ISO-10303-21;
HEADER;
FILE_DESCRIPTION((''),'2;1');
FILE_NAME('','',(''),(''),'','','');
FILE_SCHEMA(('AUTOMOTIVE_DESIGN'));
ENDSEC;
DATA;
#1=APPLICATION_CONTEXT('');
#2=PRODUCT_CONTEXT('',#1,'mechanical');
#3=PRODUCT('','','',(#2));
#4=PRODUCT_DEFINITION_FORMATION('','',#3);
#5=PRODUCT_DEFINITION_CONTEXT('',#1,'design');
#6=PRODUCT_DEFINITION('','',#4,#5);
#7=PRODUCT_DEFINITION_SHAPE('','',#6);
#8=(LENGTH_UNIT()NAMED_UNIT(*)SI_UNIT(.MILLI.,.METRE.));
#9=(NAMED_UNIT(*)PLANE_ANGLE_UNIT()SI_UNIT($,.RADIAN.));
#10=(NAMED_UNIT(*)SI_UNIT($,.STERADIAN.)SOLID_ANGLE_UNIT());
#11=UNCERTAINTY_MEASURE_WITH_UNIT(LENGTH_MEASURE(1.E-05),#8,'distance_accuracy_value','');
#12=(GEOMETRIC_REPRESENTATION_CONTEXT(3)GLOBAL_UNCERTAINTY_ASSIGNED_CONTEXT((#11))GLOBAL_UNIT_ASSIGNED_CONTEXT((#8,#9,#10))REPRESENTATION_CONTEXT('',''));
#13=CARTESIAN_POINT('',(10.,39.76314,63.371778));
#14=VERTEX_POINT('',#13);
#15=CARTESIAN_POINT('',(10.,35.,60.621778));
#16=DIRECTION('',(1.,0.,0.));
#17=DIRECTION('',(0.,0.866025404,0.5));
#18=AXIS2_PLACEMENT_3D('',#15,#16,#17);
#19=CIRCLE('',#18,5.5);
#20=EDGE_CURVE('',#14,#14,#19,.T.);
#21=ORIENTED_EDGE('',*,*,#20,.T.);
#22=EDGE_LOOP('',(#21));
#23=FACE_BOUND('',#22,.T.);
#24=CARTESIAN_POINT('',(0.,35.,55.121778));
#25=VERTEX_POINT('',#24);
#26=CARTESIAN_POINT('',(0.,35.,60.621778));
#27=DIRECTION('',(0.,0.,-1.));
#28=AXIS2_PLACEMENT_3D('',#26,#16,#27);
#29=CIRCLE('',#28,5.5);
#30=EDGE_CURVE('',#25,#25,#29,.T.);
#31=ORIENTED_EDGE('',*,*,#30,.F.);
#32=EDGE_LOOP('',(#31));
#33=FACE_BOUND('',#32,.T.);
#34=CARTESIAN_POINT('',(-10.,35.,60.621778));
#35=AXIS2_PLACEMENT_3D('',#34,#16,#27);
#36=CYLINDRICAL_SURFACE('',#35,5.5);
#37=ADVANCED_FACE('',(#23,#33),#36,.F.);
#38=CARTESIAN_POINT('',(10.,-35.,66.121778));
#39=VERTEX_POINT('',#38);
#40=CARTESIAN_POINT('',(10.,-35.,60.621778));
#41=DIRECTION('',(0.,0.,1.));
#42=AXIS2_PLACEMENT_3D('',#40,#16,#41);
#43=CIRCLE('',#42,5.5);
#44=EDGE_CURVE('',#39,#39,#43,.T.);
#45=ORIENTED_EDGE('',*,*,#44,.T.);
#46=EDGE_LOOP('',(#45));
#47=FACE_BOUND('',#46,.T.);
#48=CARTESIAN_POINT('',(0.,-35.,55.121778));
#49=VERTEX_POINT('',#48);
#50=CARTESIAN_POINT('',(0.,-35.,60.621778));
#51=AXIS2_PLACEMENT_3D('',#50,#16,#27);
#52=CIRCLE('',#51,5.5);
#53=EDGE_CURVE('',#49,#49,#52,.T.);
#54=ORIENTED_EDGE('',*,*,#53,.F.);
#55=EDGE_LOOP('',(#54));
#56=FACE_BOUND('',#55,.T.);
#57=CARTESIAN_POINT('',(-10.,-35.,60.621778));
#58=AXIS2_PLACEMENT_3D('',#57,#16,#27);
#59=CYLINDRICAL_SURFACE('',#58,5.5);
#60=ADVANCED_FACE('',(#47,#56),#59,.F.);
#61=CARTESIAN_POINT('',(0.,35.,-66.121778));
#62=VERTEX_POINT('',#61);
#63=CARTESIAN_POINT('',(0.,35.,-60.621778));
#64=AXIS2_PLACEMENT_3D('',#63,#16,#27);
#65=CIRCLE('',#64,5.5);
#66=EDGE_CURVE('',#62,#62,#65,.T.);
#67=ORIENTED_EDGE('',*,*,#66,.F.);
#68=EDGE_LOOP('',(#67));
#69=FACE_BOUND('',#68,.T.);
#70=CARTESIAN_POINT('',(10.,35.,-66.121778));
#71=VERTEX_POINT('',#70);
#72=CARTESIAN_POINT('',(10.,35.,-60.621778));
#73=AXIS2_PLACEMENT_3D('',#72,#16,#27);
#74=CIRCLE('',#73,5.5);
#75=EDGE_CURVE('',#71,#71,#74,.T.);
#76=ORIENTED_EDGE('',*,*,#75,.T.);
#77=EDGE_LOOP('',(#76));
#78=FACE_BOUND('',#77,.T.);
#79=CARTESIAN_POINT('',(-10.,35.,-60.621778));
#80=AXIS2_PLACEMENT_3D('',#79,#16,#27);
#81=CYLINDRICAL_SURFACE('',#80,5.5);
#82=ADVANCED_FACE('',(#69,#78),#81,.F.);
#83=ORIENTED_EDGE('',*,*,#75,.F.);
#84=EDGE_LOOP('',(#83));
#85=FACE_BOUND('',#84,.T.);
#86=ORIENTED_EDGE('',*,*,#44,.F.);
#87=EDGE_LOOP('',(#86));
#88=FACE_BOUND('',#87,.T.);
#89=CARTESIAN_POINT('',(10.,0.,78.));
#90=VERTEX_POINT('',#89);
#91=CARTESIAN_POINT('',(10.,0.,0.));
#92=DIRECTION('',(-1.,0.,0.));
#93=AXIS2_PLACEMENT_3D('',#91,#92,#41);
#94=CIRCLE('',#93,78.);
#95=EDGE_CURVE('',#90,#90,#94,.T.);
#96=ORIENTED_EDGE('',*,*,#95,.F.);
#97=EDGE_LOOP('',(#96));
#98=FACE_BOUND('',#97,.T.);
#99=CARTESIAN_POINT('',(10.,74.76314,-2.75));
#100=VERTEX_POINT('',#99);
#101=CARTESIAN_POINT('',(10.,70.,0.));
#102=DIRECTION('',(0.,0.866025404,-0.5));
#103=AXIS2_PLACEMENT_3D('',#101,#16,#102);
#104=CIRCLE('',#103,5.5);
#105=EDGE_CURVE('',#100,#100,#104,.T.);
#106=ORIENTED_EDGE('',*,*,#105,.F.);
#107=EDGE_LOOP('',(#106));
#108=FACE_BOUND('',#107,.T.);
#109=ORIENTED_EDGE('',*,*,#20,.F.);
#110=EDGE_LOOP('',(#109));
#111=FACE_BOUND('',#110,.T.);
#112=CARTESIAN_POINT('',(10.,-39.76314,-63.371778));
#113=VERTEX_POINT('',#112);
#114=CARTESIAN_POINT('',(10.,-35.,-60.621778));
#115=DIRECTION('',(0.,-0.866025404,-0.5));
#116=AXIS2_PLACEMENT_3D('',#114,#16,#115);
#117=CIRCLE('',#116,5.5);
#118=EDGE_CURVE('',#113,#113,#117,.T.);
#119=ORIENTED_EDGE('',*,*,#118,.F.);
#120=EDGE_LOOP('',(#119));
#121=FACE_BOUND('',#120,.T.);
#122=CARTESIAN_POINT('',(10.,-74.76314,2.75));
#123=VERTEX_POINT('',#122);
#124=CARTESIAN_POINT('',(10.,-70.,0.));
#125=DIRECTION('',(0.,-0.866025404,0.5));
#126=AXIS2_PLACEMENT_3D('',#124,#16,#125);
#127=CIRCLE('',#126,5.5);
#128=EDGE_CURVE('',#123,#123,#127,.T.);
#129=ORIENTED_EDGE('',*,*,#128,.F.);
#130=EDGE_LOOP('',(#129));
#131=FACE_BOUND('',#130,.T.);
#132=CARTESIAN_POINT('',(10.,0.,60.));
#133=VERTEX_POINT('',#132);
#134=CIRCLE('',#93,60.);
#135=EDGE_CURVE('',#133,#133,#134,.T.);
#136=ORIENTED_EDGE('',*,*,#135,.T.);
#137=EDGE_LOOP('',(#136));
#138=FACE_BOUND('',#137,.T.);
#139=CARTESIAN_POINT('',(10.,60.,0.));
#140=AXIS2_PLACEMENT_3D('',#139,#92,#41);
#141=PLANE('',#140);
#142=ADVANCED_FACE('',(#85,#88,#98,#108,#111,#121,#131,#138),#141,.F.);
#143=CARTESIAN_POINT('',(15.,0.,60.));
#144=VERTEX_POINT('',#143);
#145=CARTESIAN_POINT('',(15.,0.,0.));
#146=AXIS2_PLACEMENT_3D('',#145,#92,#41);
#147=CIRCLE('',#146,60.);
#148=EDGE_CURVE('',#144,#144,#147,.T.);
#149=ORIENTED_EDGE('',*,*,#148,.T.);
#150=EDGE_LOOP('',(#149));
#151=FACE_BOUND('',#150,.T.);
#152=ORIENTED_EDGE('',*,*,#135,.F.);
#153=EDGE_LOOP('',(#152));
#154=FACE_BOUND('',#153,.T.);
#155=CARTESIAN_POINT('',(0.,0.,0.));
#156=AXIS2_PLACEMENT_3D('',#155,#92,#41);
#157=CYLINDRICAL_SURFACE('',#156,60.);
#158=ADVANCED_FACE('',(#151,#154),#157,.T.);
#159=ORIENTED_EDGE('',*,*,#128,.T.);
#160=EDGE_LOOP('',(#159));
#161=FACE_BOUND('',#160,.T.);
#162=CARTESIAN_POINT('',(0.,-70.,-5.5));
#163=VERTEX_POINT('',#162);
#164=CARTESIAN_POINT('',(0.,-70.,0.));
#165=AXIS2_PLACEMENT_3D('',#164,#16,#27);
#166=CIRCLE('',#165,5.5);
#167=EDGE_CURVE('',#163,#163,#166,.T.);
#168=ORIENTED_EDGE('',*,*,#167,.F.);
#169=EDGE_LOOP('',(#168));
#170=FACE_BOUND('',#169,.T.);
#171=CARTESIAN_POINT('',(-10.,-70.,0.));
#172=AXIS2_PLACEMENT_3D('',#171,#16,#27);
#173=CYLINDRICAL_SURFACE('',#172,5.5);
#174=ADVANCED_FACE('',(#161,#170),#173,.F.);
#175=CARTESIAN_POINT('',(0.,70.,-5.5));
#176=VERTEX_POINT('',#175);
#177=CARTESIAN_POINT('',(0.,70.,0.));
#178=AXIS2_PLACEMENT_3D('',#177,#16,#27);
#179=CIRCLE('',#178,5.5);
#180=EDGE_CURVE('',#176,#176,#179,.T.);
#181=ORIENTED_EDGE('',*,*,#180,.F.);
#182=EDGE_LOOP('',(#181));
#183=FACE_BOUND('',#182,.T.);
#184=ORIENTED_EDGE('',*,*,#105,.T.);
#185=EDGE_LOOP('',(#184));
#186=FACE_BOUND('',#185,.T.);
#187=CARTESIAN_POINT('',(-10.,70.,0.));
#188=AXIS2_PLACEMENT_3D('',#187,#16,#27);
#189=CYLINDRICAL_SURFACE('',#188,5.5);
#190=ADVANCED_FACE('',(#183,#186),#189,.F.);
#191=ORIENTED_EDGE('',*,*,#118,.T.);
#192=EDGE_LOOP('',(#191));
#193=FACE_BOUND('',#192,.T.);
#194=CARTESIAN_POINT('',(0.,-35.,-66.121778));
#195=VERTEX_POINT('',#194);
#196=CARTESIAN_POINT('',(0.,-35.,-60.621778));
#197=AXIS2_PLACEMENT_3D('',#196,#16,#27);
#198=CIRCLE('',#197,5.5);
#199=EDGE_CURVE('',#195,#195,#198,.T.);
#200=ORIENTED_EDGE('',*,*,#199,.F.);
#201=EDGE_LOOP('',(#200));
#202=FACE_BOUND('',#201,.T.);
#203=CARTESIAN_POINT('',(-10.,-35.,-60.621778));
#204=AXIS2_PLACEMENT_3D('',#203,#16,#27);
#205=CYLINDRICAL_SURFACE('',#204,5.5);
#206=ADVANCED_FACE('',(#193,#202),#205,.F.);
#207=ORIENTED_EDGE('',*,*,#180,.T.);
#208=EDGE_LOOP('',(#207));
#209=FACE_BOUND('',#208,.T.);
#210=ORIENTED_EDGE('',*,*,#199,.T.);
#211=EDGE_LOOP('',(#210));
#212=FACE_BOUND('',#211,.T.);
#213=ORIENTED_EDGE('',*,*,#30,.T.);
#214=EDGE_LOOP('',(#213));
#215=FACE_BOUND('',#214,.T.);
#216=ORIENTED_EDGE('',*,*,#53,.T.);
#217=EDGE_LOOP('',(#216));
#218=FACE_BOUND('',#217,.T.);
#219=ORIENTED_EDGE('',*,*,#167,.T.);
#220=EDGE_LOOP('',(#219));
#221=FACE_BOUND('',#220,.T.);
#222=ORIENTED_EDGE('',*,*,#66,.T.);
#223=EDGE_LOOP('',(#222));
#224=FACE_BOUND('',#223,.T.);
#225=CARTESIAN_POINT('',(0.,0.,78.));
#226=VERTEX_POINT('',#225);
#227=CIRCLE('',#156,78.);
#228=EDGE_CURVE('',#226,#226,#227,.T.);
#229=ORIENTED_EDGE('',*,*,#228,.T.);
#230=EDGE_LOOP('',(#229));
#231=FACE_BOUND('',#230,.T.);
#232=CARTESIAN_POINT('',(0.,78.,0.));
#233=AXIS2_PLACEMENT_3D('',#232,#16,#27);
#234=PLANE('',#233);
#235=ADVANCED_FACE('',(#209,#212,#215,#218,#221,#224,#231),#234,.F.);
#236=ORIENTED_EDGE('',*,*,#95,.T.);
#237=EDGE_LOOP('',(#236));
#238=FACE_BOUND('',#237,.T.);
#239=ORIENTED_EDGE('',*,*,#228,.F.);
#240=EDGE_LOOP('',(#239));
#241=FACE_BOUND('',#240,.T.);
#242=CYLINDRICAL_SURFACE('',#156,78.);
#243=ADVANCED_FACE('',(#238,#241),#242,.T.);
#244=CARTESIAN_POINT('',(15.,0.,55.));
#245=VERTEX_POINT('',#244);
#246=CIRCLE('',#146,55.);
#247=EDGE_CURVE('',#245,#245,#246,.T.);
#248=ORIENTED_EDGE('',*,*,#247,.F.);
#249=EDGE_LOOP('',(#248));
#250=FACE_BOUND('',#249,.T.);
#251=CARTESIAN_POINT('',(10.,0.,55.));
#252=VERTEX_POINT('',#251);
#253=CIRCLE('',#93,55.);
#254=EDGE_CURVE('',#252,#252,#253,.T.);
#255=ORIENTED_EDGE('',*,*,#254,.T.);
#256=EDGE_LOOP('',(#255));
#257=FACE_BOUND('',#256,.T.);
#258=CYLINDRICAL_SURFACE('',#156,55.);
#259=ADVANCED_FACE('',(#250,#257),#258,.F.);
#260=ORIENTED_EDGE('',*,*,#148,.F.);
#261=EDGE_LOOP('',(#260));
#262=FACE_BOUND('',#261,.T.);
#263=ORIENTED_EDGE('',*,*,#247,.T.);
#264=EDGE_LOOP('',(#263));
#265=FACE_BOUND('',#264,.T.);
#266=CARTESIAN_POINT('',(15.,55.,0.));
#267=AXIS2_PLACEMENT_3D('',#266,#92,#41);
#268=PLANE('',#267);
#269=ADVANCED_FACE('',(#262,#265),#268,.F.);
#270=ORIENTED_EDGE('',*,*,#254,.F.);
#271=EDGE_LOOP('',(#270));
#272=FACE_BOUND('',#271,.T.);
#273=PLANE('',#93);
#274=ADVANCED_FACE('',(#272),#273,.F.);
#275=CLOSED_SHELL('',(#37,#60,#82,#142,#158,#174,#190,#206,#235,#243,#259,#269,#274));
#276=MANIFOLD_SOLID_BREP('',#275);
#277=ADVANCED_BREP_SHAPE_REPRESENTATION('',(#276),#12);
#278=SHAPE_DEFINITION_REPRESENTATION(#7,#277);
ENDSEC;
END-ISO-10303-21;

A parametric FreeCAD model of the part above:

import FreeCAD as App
import Part
import Sketcher
from FreeCAD import Vector
Q = App.Units.Quantity


def add_polygon(sketch, points):
    """Adds a closed chain of lines whose ends are joined by coincident constraints."""
    first, n = sketch.GeometryCount, len(points)
    for a, b in zip(points, points[1:] + points[:1]):
        sketch.addGeometry(Part.LineSegment(App.Vector(*a, 0), App.Vector(*b, 0)), False)
    for i in range(n):
        sketch.addConstraint(Sketcher.Constraint("Coincident", first + i, 2, first + (i + 1) % n, 1))

doc = App.newDocument("Part")
body = doc.addObject("PartDesign::Body", "Body")

sketch1 = body.newObject("Sketcher::SketchObject", "Sketch")
sketch1.AttachmentSupport = (doc.getObject("XY_Plane"), [""])
sketch1.MapMode = "FlatFace"
add_polygon(sketch1, [(10, 78), (0, 78), (0, 0), (10, 0), (10, 55), (15, 55), (15, 60), (10, 60)])
sketch1.addConstraint([
    Sketcher.Constraint("Horizontal", 0),
    Sketcher.Constraint("Vertical", 1),
    Sketcher.Constraint("Horizontal", 2),
    Sketcher.Constraint("Vertical", 3),
    Sketcher.Constraint("Horizontal", 4),
    Sketcher.Constraint("Vertical", 5),
    Sketcher.Constraint("Horizontal", 6),
    Sketcher.Constraint("Vertical", 7),
    Sketcher.Constraint("Coincident", 1, 2, -1, 1),
    Sketcher.Constraint("Vertical", 3, 2, 6, 2),
    Sketcher.Constraint("Equal", 6, 5),
    Sketcher.Constraint("DistanceX", 0, 2, 0, 1, Q("10 mm")),
    Sketcher.Constraint("DistanceX", 4, 1, 4, 2, Q("5 mm")),
    Sketcher.Constraint("DistanceY", 1, 2, 1, 1, Q("78 mm")),
    Sketcher.Constraint("DistanceY", 3, 1, 3, 2, Q("55 mm")),
])
revolution = body.newObject("PartDesign::Revolution", "Revolution")
revolution.Profile = sketch1
revolution.ReferenceAxis = (sketch1, ["H_Axis"])
revolution.Angle = 360

sketch2 = body.newObject("Sketcher::SketchObject", "Sketch001")
sketch2.AttachmentSupport = (doc.getObject("YZ_Plane"), [""])
sketch2.MapMode = "FlatFace"
sketch2.AttachmentOffset = App.Placement(Vector(0, 0, 10), App.Rotation())
sketch2.addGeometry(Part.Circle(Vector(35, -61, 0), Vector(0, 0, 1), 6), False)
sketch2.addConstraint([
    Sketcher.Constraint("Diameter", 0, Q("11 mm")),
    Sketcher.Constraint("DistanceX", -1, 1, 0, 3, Q("35 mm")),
    Sketcher.Constraint("DistanceY", 0, 3, -1, 1, Q("60.621778 mm")),
])
pocket1 = body.newObject("PartDesign::Pocket", "Pocket")
pocket1.Profile = sketch2
pocket1.Length = 20
doc.recompute()

polarpattern = body.newObject("PartDesign::PolarPattern", "PolarPattern")
polarpattern.Originals = [pocket1]
polarpattern.Axis = (doc.getObject("X_Axis"), [""])
polarpattern.Angle = 360
polarpattern.Occurrences = 6
body.Tip = polarpattern

doc.recompute()
